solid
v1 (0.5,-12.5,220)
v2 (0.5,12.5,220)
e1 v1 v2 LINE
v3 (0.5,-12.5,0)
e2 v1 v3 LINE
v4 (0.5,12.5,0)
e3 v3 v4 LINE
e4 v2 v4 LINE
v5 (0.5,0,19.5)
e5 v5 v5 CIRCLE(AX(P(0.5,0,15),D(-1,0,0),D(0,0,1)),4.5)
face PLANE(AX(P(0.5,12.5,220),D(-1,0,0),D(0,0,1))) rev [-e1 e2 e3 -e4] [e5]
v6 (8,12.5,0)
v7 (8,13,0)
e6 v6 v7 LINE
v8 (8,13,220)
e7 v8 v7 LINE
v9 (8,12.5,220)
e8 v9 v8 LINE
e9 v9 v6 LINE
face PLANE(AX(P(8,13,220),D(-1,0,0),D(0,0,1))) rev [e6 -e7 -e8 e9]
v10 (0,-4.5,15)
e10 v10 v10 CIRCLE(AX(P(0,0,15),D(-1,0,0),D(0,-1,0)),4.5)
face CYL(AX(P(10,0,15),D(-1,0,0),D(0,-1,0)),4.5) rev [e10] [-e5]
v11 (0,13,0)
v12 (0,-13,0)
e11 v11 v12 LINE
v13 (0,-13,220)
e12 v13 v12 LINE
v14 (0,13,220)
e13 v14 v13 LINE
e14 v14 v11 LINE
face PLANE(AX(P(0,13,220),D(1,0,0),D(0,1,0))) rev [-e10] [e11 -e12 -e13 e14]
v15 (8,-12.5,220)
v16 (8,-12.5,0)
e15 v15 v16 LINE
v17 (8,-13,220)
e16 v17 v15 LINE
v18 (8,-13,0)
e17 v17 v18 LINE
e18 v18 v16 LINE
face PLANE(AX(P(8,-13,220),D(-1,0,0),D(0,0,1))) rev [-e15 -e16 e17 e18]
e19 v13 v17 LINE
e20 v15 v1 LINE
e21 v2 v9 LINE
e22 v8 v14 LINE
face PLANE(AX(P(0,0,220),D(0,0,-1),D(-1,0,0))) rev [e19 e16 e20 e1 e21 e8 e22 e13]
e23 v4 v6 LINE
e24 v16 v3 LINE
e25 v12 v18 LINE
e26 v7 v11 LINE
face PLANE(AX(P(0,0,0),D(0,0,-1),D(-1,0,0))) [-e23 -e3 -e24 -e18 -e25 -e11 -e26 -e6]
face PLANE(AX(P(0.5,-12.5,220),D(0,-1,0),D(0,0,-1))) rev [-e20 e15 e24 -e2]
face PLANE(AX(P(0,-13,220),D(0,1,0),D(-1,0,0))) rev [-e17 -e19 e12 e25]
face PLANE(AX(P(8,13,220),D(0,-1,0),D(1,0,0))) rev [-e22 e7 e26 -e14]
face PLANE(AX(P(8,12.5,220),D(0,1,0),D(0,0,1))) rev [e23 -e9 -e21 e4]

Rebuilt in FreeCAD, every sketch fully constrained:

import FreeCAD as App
import Part
import Sketcher

V = App.Vector


def add_polygon(sketch, points):
    """Adds a closed chain of lines whose ends are joined by coincident constraints."""
    first, n = sketch.GeometryCount, len(points)
    for a, b in zip(points, points[1:] + points[:1]):
        sketch.addGeometry(Part.LineSegment(App.Vector(*a, 0), App.Vector(*b, 0)), False)
    for i in range(n):
        sketch.addConstraint(Sketcher.Constraint("Coincident", first + i, 2, first + (i + 1) % n, 1))

doc = App.newDocument("Part")
params = doc.addObject("Spreadsheet::Sheet", "Params")
for row, (alias, value) in enumerate([
    ("sketch1_width", "8 mm"),
    ("sketch1_height", "26 mm"),
    ("sketch1_height2", "25 mm"),
    ("sketch1_width2", "7.5 mm"),
    ("pad1_length", "220 mm"),
    ("sketch2_diameter", "9 mm"),
    ("pocket1_length", "10 mm"),
], start=1):
    params.set(f"A{row}", alias)
    params.set(f"B{row}", "=" + value)
    params.setAlias(f"B{row}", alias)

body = doc.addObject("PartDesign::Body", "Body")

sketch1 = body.newObject("Sketcher::SketchObject", "Sketch")
sketch1.AttachmentSupport = (doc.getObject("XY_Plane"), [""])
sketch1.MapMode = "FlatFace"
add_polygon(sketch1, [(8, 13), (0, 13), (0, -13), (8, -13), (8, -12.5), (0.5, -12.5), (0.5, 12.5), (8, 12.5)])
sketch1.addConstraint(Sketcher.Constraint("Horizontal", 0))
sketch1.addConstraint(Sketcher.Constraint("Vertical", 1))
sketch1.addConstraint(Sketcher.Constraint("Horizontal", 2))
sketch1.addConstraint(Sketcher.Constraint("Vertical", 3))
sketch1.addConstraint(Sketcher.Constraint("Horizontal", 4))
sketch1.addConstraint(Sketcher.Constraint("Vertical", 5))
sketch1.addConstraint(Sketcher.Constraint("Horizontal", 6))
sketch1.addConstraint(Sketcher.Constraint("Vertical", 7))
sketch1.addConstraint(Sketcher.Constraint("Symmetric", 0, 2, 1, 2, -1, 1))
sketch1.addConstraint(Sketcher.Constraint("Symmetric", 3, 2, 6, 2, -1))
sketch1.addConstraint(Sketcher.Constraint("DistanceX", 0, 2, 0, 1, 8.0))
sketch1.addConstraint(Sketcher.Constraint("DistanceY", 1, 2, 1, 1, 26.0))
sketch1.addConstraint(Sketcher.Constraint("DistanceY", 5, 1, 5, 2, 25.0))
sketch1.addConstraint(Sketcher.Constraint("DistanceX", 4, 2, 4, 1, 7.5))
sketch1.setExpression("Constraints[18]", "Params.sketch1_width")
sketch1.setExpression("Constraints[19]", "Params.sketch1_height")
sketch1.setExpression("Constraints[20]", "Params.sketch1_height2")
sketch1.setExpression("Constraints[21]", "Params.sketch1_width2")
pad1 = body.newObject("PartDesign::Pad", "Pad")
pad1.Profile = sketch1
pad1.setExpression("Length", "Params.pad1_length")

sketch2 = body.newObject("Sketcher::SketchObject", "Sketch001")
sketch2.AttachmentSupport = (doc.getObject("YZ_Plane"), [""])
sketch2.MapMode = "FlatFace"
sketch2.addGeometry(Part.Circle(V(0, 15, 0), V(0, 0, 1), 4.5), False)
sketch2.addConstraint(Sketcher.Constraint("PointOnObject", 0, 3, -2))
sketch2.addConstraint(Sketcher.Constraint("Diameter", 0, 9.0))
sketch2.addConstraint(Sketcher.Constraint("DistanceY", -1, 1, 0, 3, 15.0))
sketch2.setExpression("Constraints[1]", "Params.sketch2_diameter")
pocket1 = body.newObject("PartDesign::Pocket", "Pocket")
pocket1.Profile = sketch2
pocket1.setExpression("Length", "Params.pocket1_length")
pocket1.Reversed = True

doc.recompute()
